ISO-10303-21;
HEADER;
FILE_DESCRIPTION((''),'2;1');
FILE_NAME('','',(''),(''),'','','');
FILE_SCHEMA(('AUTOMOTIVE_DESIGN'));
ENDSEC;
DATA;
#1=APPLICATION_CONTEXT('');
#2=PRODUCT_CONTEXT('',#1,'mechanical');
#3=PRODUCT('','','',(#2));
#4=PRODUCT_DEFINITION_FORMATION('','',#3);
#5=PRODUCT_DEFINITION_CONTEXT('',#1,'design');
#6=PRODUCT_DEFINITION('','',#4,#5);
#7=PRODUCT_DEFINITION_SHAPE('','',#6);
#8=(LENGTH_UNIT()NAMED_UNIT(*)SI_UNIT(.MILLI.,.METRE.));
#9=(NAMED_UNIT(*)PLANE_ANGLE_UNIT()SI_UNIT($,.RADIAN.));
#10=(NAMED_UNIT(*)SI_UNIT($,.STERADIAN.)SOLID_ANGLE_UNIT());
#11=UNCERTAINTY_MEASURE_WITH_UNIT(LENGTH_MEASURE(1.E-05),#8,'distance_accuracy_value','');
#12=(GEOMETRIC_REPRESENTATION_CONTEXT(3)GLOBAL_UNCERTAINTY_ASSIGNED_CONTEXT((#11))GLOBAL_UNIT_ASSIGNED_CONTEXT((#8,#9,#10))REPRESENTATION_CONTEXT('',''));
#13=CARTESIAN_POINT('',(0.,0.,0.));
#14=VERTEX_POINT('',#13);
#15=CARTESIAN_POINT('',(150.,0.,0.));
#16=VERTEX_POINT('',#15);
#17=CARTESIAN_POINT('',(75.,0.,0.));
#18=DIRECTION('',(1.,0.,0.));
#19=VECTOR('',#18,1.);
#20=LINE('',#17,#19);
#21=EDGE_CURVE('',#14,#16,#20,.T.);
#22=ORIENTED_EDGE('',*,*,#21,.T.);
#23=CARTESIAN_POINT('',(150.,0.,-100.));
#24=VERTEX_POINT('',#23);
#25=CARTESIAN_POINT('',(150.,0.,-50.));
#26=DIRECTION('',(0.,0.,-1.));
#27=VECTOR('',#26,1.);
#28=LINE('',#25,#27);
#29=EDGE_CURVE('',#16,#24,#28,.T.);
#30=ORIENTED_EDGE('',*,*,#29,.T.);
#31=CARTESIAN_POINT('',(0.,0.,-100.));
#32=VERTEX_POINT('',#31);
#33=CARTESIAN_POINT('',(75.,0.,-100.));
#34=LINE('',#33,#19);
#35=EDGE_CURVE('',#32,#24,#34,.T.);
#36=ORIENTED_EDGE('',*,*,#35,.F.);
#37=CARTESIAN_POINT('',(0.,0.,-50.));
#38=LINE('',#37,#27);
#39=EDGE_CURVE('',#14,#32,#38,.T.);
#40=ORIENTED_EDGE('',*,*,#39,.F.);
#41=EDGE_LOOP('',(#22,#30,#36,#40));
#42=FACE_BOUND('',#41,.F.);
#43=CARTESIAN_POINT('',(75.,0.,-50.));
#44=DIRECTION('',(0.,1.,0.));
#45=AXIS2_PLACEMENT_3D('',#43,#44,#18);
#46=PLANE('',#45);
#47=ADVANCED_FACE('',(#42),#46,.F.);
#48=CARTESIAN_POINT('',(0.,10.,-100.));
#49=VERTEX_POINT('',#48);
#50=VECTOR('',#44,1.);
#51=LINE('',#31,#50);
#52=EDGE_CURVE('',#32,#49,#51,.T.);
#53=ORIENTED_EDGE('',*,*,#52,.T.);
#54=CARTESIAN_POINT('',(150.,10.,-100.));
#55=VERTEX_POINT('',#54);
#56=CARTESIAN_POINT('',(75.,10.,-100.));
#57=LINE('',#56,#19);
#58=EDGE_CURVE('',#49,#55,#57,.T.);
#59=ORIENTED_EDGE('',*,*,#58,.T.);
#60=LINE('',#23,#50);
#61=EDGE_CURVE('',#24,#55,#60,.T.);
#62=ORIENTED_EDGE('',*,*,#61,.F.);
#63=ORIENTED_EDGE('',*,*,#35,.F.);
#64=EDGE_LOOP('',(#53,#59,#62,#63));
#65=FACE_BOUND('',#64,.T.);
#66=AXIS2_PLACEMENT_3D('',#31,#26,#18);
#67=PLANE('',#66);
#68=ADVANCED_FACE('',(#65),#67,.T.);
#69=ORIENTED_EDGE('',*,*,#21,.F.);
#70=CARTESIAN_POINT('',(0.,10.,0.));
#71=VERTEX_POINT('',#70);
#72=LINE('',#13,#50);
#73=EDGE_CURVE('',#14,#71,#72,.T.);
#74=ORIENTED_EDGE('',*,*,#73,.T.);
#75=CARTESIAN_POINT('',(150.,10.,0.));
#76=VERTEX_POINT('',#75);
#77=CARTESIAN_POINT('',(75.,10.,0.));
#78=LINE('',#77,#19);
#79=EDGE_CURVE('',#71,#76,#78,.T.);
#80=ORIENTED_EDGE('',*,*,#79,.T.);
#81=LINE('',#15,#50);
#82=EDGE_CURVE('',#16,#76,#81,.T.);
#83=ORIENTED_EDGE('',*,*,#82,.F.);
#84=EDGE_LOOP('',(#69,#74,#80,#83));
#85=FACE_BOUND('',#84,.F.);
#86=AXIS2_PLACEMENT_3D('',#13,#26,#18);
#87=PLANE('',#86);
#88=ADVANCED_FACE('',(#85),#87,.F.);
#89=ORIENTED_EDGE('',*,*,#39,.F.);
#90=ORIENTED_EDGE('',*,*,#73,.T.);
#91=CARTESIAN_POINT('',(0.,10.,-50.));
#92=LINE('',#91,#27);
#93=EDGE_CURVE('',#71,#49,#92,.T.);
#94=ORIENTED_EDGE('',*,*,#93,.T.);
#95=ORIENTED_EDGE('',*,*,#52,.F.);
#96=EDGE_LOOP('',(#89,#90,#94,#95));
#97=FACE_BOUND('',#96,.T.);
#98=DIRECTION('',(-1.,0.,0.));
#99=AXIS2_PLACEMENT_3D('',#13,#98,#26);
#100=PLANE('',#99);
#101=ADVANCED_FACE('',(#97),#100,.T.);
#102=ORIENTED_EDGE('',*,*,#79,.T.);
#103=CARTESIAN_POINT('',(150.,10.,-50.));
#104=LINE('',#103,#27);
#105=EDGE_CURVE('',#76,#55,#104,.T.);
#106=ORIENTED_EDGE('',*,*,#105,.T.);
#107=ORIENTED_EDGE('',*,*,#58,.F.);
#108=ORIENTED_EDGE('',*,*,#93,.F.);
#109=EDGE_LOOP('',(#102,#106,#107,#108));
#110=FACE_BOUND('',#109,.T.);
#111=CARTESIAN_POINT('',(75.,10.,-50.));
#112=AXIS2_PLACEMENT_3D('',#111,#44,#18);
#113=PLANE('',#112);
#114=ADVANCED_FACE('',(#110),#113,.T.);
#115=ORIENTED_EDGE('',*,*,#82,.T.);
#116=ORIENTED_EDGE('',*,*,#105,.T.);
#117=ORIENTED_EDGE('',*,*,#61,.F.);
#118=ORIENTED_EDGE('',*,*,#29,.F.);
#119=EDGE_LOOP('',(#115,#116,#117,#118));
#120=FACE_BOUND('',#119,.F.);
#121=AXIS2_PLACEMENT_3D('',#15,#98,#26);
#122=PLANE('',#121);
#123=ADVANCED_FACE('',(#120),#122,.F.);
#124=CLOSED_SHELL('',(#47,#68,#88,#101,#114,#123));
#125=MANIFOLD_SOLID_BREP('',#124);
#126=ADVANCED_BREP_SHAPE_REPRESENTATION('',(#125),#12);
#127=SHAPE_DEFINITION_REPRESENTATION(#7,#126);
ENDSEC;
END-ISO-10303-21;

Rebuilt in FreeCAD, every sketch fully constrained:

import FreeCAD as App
import Part
import Sketcher
from FreeCAD import Vector


def add_polygon(sketch, points):
    """Adds a closed chain of lines whose ends are joined by coincident constraints."""
    first, n = sketch.GeometryCount, len(points)
    for a, b in zip(points, points[1:] + points[:1]):
        sketch.addGeometry(Part.LineSegment(App.Vector(*a, 0), App.Vector(*b, 0)), False)
    for i in range(n):
        sketch.addConstraint(Sketcher.Constraint("Coincident", first + i, 2, first + (i + 1) % n, 1))

doc = App.newDocument("Part")
body = doc.addObject("PartDesign::Body", "Body")

# Sketch on XZ plane
sketch1 = doc.addObject("Sketcher::SketchObject", "Sketch")
body.addObject(sketch1)
sketch1.AttachmentSupport = (doc.XZ_Plane, [""])
sketch1.MapMode = "FlatFace"
add_polygon(sketch1, [(0, -100), (0, 0), (150, 0), (150, -100)])  # lines 0-3
sketch1.addConstraint(Sketcher.Constraint("Vertical", 0))
sketch1.addConstraint(Sketcher.Constraint("Horizontal", 1))
sketch1.addConstraint(Sketcher.Constraint("Vertical", 2))
sketch1.addConstraint(Sketcher.Constraint("Horizontal", 3))
sketch1.addConstraint(Sketcher.Constraint("Coincident", 0, 2, -1, 1))
sketch1.addConstraint(Sketcher.Constraint("DistanceX", 1, 1, 1, 2, 150.0))
sketch1.addConstraint(Sketcher.Constraint("DistanceY", 0, 1, 0, 2, 100.0))
pad1 = doc.addObject("PartDesign::Pad", "Pad")
body.addObject(pad1)
pad1.Profile = sketch1
pad1.Length = 10
pad1.Reversed = True

doc.recompute()
